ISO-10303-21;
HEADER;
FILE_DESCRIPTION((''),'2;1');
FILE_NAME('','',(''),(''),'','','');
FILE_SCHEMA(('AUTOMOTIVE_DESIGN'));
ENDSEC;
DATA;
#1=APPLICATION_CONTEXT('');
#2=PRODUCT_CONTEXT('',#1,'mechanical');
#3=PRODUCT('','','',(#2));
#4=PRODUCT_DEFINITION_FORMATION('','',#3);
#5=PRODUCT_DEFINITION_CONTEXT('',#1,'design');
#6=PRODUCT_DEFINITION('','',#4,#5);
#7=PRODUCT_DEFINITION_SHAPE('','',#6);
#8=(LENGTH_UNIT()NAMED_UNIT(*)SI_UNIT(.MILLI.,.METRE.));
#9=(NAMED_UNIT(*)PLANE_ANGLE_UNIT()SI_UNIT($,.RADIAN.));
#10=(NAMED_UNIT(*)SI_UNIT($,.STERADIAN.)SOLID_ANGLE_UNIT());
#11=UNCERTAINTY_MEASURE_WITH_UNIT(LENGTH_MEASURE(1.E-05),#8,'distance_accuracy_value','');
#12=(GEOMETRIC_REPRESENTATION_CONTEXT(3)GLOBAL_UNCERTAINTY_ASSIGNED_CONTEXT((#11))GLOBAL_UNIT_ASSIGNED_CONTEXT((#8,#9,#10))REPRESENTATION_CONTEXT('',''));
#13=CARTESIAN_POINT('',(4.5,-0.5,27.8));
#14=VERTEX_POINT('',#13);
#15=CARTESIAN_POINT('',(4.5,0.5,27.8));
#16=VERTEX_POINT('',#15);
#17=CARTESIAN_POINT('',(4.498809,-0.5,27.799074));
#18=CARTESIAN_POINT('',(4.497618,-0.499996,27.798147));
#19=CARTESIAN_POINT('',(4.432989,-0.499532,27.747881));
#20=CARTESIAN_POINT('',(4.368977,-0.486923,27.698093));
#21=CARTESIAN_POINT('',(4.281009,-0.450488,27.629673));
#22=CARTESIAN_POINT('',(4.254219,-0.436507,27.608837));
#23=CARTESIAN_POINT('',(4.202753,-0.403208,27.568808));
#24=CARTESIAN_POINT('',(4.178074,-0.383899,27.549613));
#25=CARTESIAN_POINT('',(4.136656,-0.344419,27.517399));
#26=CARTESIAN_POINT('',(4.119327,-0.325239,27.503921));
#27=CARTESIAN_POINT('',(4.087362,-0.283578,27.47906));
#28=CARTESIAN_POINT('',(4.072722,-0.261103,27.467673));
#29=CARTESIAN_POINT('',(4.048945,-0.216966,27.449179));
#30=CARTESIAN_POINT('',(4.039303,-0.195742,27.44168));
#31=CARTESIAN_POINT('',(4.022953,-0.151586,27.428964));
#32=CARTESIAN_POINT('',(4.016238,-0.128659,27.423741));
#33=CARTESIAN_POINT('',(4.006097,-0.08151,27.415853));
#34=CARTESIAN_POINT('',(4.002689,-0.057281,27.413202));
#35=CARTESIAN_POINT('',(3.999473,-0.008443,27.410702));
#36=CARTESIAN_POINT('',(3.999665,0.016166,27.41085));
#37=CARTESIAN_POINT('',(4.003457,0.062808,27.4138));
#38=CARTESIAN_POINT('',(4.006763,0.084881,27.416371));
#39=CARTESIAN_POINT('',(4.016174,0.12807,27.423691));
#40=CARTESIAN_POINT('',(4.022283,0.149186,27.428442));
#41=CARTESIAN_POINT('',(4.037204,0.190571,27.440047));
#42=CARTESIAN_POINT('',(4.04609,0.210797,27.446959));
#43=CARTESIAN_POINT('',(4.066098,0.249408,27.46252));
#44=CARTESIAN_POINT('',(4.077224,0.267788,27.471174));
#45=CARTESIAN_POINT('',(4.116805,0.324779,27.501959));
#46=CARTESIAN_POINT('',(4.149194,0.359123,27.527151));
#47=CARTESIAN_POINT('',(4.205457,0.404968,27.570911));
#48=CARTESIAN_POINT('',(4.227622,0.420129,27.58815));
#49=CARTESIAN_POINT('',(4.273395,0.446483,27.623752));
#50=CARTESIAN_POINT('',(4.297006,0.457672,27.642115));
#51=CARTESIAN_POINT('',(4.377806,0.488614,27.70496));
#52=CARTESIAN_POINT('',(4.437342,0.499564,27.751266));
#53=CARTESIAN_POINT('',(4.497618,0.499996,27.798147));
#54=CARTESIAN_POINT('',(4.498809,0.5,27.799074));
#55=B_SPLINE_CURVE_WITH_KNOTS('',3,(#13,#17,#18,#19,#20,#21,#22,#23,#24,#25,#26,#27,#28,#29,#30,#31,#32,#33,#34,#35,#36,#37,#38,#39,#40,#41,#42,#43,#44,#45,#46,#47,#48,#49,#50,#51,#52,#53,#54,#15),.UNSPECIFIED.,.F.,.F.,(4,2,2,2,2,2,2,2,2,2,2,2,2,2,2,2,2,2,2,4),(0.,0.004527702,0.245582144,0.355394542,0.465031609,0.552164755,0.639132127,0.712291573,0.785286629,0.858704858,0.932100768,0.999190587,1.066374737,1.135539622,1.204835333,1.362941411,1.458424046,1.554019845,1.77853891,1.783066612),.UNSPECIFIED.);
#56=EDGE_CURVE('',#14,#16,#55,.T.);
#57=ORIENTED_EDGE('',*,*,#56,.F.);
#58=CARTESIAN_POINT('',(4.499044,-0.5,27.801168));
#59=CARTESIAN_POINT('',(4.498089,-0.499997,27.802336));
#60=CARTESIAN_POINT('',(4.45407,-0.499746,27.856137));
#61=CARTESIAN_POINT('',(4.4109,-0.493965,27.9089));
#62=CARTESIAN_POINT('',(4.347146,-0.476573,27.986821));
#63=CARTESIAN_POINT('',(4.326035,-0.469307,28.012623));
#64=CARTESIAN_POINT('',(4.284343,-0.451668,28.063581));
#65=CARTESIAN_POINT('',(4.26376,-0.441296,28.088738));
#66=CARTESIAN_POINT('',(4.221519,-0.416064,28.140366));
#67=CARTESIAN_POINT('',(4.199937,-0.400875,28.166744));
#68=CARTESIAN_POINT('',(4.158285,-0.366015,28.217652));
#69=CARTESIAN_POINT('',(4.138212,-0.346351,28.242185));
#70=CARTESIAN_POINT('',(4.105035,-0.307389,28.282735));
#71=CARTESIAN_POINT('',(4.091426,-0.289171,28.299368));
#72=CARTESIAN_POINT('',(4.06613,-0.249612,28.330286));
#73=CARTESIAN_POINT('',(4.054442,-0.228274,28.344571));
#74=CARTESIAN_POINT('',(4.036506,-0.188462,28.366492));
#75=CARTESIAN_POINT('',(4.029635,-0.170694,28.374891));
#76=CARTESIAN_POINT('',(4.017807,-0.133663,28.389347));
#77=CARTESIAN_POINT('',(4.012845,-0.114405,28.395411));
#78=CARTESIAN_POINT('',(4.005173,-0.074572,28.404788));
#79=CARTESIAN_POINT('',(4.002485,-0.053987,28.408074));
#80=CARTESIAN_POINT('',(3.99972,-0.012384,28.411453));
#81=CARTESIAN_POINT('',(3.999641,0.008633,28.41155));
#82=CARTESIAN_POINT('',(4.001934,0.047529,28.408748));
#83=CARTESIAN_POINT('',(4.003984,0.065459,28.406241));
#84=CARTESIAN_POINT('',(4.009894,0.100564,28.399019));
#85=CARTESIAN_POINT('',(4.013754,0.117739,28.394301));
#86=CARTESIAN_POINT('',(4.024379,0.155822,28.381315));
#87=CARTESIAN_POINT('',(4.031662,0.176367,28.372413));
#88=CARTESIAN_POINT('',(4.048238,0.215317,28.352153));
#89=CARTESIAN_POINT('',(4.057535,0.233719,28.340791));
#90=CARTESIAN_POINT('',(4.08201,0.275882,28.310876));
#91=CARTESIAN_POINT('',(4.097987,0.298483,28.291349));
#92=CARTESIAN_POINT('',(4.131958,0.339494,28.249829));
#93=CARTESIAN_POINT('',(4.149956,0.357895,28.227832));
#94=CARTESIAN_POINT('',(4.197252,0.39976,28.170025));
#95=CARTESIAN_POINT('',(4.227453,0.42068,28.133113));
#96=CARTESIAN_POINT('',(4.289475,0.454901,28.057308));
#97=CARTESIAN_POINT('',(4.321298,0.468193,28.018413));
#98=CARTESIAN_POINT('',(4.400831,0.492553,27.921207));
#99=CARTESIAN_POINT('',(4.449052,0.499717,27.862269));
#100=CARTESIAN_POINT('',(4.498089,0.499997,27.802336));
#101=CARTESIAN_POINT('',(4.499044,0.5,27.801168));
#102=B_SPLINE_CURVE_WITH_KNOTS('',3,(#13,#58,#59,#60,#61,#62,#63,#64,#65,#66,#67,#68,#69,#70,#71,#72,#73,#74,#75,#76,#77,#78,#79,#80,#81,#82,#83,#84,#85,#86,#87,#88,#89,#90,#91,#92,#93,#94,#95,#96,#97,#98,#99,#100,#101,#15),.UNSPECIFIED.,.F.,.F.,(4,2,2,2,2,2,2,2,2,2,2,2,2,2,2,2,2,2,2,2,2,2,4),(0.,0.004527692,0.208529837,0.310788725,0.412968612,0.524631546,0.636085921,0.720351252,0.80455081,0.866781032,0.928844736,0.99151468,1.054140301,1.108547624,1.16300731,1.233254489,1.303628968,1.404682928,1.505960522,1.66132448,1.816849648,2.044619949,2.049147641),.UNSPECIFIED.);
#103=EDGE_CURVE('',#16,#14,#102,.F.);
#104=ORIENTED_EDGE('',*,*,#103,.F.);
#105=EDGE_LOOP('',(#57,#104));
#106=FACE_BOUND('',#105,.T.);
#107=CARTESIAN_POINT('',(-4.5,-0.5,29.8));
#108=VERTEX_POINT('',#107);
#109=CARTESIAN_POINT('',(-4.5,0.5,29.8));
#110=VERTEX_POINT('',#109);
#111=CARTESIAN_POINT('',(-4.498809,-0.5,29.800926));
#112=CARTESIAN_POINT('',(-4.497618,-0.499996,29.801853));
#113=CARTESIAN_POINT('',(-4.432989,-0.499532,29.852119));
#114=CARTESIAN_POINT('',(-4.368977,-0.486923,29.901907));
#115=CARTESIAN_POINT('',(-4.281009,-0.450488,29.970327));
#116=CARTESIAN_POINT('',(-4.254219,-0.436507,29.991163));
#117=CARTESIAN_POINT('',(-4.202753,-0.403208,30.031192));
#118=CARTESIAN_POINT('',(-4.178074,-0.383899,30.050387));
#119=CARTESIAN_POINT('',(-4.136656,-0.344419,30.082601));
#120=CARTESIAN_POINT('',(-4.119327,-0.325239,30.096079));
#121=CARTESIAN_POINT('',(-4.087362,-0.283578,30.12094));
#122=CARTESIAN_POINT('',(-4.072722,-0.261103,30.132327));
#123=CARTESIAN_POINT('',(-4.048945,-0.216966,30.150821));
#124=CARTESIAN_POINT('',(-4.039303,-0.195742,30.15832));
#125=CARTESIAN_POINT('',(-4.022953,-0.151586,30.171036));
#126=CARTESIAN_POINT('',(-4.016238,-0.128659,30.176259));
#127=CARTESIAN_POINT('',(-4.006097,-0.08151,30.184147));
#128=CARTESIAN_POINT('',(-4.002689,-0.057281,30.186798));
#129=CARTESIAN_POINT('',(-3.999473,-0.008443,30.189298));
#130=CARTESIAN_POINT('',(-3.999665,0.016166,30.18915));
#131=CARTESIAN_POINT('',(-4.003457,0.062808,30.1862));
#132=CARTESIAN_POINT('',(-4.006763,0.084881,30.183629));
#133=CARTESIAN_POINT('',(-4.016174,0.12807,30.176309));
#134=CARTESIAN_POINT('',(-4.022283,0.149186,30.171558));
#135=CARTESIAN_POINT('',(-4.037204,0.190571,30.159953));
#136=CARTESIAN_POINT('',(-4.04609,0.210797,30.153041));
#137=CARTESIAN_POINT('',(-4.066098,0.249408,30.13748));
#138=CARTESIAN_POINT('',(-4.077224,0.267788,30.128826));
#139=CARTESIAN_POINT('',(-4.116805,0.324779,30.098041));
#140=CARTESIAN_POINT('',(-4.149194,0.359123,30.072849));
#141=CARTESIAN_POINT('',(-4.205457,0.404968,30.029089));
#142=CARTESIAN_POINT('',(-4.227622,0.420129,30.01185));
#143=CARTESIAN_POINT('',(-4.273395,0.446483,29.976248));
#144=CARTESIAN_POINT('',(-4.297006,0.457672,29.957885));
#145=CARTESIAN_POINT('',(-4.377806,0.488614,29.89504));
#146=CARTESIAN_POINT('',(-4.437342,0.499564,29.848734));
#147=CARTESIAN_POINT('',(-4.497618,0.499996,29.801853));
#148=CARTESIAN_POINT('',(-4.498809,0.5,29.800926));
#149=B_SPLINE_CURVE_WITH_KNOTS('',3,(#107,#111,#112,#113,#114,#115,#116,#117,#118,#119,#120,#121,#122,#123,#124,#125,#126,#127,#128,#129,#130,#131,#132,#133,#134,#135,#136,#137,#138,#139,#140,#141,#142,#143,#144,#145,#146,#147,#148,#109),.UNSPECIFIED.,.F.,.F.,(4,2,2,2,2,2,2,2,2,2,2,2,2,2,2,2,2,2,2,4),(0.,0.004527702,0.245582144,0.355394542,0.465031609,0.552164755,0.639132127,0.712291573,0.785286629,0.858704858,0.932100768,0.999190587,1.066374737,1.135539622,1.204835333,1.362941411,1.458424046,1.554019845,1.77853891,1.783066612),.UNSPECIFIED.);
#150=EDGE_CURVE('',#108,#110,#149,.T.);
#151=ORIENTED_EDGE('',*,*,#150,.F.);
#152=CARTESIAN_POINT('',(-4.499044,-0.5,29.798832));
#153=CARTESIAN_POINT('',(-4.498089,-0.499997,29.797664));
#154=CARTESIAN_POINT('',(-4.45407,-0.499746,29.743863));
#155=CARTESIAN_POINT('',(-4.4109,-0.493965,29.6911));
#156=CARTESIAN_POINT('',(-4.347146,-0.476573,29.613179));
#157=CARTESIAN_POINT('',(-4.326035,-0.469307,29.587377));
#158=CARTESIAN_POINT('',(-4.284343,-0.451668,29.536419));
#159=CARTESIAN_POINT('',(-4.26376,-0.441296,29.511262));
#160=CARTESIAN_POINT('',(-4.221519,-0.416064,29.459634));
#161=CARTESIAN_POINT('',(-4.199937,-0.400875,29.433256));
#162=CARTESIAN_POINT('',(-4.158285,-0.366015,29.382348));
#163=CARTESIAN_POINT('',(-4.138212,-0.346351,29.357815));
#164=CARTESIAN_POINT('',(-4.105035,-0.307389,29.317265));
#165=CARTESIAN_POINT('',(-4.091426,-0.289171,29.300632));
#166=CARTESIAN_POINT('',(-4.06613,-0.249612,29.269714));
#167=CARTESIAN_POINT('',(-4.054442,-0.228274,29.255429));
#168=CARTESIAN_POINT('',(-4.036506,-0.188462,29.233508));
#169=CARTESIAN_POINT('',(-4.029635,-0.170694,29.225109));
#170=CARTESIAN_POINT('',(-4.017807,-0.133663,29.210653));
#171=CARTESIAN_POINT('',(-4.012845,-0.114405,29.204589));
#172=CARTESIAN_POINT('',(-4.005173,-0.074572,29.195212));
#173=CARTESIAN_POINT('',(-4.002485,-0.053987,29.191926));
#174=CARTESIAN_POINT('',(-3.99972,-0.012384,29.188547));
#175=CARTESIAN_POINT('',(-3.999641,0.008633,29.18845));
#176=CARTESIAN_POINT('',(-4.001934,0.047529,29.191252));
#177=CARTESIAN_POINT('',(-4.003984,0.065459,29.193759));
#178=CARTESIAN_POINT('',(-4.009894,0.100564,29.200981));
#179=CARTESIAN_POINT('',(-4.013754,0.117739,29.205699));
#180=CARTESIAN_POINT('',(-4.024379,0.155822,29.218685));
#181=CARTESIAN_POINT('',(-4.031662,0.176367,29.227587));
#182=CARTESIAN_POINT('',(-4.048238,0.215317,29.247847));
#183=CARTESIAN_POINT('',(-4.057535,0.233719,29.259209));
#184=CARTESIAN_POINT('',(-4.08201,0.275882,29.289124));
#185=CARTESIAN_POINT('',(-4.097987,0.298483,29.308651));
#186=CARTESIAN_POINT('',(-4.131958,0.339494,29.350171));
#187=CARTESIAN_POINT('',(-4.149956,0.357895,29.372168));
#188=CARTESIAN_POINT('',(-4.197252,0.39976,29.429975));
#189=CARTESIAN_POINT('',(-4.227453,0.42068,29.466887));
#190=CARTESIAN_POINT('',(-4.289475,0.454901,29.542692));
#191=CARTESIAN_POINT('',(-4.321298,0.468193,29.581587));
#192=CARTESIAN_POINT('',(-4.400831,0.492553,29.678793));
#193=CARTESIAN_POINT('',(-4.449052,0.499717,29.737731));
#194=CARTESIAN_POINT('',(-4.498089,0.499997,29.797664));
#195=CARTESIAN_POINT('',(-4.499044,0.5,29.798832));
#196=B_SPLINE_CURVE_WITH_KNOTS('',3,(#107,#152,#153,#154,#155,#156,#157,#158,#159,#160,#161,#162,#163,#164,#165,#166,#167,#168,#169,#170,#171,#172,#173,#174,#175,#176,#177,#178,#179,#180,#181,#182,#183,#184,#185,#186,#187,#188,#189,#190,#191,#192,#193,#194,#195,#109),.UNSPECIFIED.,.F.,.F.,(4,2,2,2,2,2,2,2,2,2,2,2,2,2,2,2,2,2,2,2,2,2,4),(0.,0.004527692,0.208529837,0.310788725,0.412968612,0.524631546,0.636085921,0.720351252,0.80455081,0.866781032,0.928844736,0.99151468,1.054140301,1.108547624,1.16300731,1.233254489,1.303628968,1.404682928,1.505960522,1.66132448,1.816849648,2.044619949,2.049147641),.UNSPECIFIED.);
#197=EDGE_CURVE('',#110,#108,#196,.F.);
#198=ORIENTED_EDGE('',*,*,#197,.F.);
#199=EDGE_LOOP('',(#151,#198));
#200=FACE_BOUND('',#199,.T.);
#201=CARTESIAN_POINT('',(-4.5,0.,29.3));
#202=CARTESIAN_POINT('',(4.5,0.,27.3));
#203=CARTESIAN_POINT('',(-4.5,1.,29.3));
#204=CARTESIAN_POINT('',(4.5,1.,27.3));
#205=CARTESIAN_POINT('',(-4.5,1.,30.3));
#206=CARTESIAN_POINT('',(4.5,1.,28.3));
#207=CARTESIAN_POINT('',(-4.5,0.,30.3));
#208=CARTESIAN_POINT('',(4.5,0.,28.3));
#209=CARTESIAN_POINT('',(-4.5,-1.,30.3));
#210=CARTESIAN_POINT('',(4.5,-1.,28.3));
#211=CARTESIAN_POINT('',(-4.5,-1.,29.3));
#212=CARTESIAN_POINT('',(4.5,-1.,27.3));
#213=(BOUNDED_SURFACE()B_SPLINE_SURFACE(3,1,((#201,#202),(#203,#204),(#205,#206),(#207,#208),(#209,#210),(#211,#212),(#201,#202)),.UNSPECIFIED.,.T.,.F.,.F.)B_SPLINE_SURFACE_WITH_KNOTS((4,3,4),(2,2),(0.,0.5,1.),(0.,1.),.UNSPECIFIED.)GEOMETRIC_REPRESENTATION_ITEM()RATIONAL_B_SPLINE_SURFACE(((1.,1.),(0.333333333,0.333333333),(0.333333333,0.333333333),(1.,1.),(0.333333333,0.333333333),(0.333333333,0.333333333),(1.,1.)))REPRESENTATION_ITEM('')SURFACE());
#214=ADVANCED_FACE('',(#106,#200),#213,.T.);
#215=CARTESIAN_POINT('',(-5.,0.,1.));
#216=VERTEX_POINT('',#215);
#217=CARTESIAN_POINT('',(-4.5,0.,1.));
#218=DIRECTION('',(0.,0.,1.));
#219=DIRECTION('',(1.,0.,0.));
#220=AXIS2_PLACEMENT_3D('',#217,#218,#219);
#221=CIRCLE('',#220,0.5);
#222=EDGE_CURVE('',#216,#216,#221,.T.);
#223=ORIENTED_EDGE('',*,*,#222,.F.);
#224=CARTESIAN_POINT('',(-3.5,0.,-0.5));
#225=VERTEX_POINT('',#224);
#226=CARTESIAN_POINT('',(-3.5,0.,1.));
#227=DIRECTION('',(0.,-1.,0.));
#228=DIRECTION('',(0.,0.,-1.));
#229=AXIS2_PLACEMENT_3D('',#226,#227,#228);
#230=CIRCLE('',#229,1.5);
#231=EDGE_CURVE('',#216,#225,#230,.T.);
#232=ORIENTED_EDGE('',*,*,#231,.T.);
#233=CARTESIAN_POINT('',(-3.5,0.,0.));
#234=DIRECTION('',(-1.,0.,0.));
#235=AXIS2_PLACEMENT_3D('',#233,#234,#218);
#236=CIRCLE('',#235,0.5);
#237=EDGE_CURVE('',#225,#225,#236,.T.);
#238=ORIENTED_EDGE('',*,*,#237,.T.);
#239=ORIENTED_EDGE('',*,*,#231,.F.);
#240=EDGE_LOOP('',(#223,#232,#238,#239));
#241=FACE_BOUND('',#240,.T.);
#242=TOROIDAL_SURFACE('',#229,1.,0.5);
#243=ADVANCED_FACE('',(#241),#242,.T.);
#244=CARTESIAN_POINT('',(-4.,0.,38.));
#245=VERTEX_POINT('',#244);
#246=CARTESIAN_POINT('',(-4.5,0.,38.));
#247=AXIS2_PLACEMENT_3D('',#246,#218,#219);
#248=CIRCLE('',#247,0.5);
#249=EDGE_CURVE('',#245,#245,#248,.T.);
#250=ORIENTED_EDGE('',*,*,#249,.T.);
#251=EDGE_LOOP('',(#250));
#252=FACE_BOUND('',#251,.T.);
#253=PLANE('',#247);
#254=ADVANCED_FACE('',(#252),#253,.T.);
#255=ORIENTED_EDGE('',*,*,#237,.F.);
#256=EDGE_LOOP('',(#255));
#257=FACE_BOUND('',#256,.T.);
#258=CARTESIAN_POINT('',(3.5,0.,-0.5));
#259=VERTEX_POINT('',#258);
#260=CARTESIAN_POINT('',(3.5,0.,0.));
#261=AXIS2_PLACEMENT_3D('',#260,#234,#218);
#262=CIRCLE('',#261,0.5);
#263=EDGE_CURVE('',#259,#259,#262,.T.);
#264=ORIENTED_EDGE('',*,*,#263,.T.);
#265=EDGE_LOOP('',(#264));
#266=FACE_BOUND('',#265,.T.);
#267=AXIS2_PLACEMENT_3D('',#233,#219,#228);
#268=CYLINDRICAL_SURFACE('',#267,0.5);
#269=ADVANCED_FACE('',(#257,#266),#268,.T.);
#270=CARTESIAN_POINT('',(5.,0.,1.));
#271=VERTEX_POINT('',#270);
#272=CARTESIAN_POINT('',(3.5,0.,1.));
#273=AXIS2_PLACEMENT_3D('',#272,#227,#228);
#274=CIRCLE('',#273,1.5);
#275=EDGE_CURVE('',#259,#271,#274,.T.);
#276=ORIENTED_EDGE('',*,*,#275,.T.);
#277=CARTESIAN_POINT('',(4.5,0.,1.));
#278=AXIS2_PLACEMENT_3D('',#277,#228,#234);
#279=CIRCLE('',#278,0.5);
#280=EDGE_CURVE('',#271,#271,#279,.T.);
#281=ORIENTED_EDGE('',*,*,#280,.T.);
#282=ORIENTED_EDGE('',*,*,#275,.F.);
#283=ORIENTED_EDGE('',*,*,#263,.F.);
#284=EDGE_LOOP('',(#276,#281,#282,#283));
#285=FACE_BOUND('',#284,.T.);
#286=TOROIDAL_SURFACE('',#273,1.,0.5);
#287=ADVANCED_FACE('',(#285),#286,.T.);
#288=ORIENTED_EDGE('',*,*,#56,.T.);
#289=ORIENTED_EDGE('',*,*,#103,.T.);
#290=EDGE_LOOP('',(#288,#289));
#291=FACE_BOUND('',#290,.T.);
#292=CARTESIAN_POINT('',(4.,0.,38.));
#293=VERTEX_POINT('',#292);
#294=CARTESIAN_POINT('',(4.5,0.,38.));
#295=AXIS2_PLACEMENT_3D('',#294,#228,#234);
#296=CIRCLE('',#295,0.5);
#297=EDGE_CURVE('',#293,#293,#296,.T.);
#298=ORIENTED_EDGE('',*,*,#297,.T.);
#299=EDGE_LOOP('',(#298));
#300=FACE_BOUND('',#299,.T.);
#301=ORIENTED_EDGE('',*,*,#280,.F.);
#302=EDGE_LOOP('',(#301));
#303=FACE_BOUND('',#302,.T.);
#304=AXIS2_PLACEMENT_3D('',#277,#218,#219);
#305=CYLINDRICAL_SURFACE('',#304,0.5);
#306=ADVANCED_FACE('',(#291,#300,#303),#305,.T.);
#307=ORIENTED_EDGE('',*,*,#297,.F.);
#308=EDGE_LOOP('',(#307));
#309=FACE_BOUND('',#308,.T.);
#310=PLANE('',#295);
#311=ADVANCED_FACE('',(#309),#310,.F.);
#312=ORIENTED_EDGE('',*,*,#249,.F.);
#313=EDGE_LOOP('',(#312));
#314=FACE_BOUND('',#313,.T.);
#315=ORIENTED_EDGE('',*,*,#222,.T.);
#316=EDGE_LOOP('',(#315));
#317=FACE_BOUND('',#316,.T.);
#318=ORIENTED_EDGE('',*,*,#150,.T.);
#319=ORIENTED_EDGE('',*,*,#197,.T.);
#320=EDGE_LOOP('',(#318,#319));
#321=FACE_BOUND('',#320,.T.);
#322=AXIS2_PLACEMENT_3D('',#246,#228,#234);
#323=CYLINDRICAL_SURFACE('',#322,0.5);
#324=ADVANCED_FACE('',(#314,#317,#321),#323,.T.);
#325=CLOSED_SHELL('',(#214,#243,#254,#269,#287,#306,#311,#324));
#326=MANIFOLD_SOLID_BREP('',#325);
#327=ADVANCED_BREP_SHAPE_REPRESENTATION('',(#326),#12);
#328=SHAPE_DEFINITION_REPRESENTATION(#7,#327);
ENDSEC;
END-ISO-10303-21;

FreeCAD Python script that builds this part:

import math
import FreeCAD as App
import Part
import Sketcher
from FreeCAD import Vector
Q = App.Units.Quantity

doc = App.newDocument("Part")
body = doc.addObject("PartDesign::Body", "Body")

# Sketch on XY plane
sketch1 = body.newObject("Sketcher::SketchObject", "Sketch")
sketch1.AttachmentSupport = (doc.getObject("XY_Plane"), [""])
sketch1.MapMode = "FlatFace"
sketch1.AttachmentOffset = App.Placement(Vector(0, 0, 38), App.Rotation())
sketch1.addGeometry(Part.Circle(Vector(-4.5, 0, 0), Vector(0, 0, 1), 0.5), False)
sketch1.addConstraint([
    Sketcher.Constraint("PointOnObject", 0, 3, -1),
    Sketcher.Constraint("Diameter", 0, Q("1 mm")),
    Sketcher.Constraint("DistanceX", 0, 3, -1, 1, Q("4.5 mm")),
])

# Sketch on XZ plane
sketch2 = body.newObject("Sketcher::SketchObject", "Sketch001")
sketch2.AttachmentSupport = (doc.getObject("XZ_Plane"), [""])
sketch2.MapMode = "FlatFace"
sketch2.addGeometry([
    Part.LineSegment(Vector(-4.5, 38, 0), Vector(-4.5, 1, 0)),  # 0
    Part.ArcOfCircle(Part.Circle(Vector(-3.5, 1, 0), Vector(0, 0, 1), 1), math.radians(-180), math.radians(-90)),  # 1
    Part.LineSegment(Vector(-3.5, 0, 0), Vector(3.5, 0, 0)),  # 2
    Part.ArcOfCircle(Part.Circle(Vector(3.5, 1, 0), Vector(0, 0, 1), 1), math.radians(-90), math.radians(0)),  # 3
    Part.LineSegment(Vector(4.5, 1, 0), Vector(4.5, 38, 0)),  # 4
], False)
sketch2.addConstraint([
    Sketcher.Constraint("Tangent", 0, 2, 1, 1),
    Sketcher.Constraint("Tangent", 1, 2, 2, 1),
    Sketcher.Constraint("Tangent", 2, 2, 3, 1),
    Sketcher.Constraint("Tangent", 3, 2, 4, 1),
    Sketcher.Constraint("Vertical", 0),
    Sketcher.Constraint("Horizontal", 2),
    Sketcher.Constraint("Vertical", 4),
    Sketcher.Constraint("Equal", 1, 3),
    Sketcher.Constraint("Symmetric", 1, 2, 2, 2, -1, 1),
    Sketcher.Constraint("Horizontal", 0, 1, 4, 2),
    Sketcher.Constraint("Radius", 1, Q("1 mm")),
    Sketcher.Constraint("DistanceX", 2, 1, 2, 2, Q("7 mm")),
    Sketcher.Constraint("DistanceY", 0, 2, 0, 1, Q("37 mm")),
])
doc.recompute()

additivepipe = body.newObject("PartDesign::AdditivePipe", "AdditivePipe")
additivepipe.Profile = sketch1
additivepipe.Spine = (sketch2, ["Edge1", "Edge2", "Edge3", "Edge4", "Edge5"])

# Sketch on YZ plane
sketch3 = body.newObject("Sketcher::SketchObject", "Sketch002")
sketch3.AttachmentSupport = (doc.getObject("YZ_Plane"), [""])
sketch3.MapMode = "FlatFace"
sketch3.AttachmentOffset = App.Placement(Vector(0, 0, 4.5), App.Rotation())
sketch3.addGeometry(Part.Circle(Vector(0, 27.8, 0), Vector(0, 0, 1), 0.5), False)
sketch3.addConstraint([
    Sketcher.Constraint("PointOnObject", 0, 3, -2),
    Sketcher.Constraint("Diameter", 0, Q("1 mm")),
    Sketcher.Constraint("DistanceY", -1, 1, 0, 3, Q("27.8 mm")),
])

# Sketch on an angled plane
sketch4 = body.newObject("Sketcher::SketchObject", "Sketch003")
sketch4.Placement = App.Placement(Vector(6.098824, 0, 27.444706), App.Rotation(Vector(0.97618706, 0, -0.216930458), Vector(0, 1, 0), Vector(0.216930458, 0, 0.97618706), "ZXY"))
sketch4.addGeometry(Part.LineSegment(Vector(-11, 0, 0), Vector(-2, 0, 0)), False)
sketch4.addConstraint([
    Sketcher.Constraint("Horizontal", 0),
    Sketcher.Constraint("PointOnObject", 0, 1, -1),
    Sketcher.Constraint("DistanceX", 0, 1, 0, 2, Q("9.219544 mm")),
    Sketcher.Constraint("DistanceX", 0, 1, -1, 1, Q("10.857369 mm")),
])
doc.recompute()

additivepipe2 = body.newObject("PartDesign::AdditivePipe", "AdditivePipe001")
additivepipe2.Profile = sketch3
additivepipe2.Spine = (sketch4, ["Edge1"])

doc.recompute()
